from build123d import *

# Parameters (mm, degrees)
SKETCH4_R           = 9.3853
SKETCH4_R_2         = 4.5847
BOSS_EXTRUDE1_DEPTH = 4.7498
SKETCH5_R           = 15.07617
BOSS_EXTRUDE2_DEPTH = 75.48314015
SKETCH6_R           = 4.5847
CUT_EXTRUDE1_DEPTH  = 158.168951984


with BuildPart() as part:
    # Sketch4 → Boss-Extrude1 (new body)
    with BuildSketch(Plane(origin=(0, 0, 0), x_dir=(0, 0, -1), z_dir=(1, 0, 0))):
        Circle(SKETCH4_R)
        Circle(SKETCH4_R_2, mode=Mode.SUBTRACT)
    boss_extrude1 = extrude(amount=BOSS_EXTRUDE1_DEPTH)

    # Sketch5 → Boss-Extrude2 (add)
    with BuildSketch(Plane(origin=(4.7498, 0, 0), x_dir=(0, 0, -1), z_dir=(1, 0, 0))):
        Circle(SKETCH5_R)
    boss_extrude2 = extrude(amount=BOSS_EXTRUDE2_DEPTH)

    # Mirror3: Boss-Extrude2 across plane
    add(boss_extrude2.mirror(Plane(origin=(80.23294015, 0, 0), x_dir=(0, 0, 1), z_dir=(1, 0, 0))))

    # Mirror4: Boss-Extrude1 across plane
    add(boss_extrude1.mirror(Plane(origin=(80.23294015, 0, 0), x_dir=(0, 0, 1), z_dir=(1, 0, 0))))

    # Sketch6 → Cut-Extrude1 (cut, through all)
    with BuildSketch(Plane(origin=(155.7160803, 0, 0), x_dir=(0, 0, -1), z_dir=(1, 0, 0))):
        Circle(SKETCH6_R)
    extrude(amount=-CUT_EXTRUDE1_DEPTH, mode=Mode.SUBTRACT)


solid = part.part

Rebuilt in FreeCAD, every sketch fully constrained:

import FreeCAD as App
import Part
import Sketcher

V = App.Vector
Q = App.Units.Quantity

doc = App.newDocument("Part")
body = doc.addObject("PartDesign::Body", "Body")

sketch1 = body.newObject("Sketcher::SketchObject", "Sketch")
sketch1.AttachmentSupport = (doc.getObject("YZ_Plane"), [""])
sketch1.MapMode = "FlatFace"
sketch1.addGeometry(Part.Circle(V(0, 0, 0), V(0, 0, 1), 9.3853), False)
sketch1.addGeometry(Part.Circle(V(0, 0, 0), V(0, 0, 1), 4.5847), False)
sketch1.addConstraint(Sketcher.Constraint("Coincident", 0, 3, -1, 1))
sketch1.addConstraint(Sketcher.Constraint("Coincident", 1, 3, -1, 1))
sketch1.addConstraint(Sketcher.Constraint("Diameter", 0, Q("0.739 in")))
sketch1.addConstraint(Sketcher.Constraint("Diameter", 1, Q("0.361 in")))
pad1 = body.newObject("PartDesign::Pad", "Pad")
pad1.Profile = sketch1
pad1.Length = Q("0.187 in")

sketch2 = body.newObject("Sketcher::SketchObject", "Sketch001")
sketch2.AttachmentSupport = (doc.getObject("YZ_Plane"), [""])
sketch2.MapMode = "FlatFace"
sketch2.AttachmentOffset = App.Placement(V(0, 0, 0.187 * 25.4), App.Rotation())
sketch2.addGeometry(Part.Circle(V(0, 0, 0), V(0, 0, 1), 15.07617), False)
sketch2.addConstraint(Sketcher.Constraint("Coincident", 0, 3, -1, 1))
sketch2.addConstraint(Sketcher.Constraint("Diameter", 0, Q("1.1871 in")))
pad2 = body.newObject("PartDesign::Pad", "Pad001")
pad2.Profile = sketch2
pad2.Length = 75.48314
doc.recompute()

datumplane = body.newObject("PartDesign::Plane", "DatumPlane")
datumplane.AttachmentSupport = (doc.getObject("YZ_Plane"), [""])
datumplane.MapMode = "FlatFace"
datumplane.AttachmentOffset = App.Placement(V(0, 0, 80.23294), App.Rotation())
mirrored = body.newObject("PartDesign::Mirrored", "Mirrored")
mirrored.Originals = [pad2]
mirrored.MirrorPlane = (datumplane, [""])
body.Tip = mirrored
doc.recompute()

datumplane2 = body.newObject("PartDesign::Plane", "DatumPlane001")
datumplane2.AttachmentSupport = (doc.getObject("YZ_Plane"), [""])
datumplane2.MapMode = "FlatFace"
datumplane2.AttachmentOffset = App.Placement(V(0, 0, 80.23294), App.Rotation())
mirrored2 = body.newObject("PartDesign::Mirrored", "Mirrored001")
mirrored2.Originals = [pad1]
mirrored2.MirrorPlane = (datumplane2, [""])
body.Tip = mirrored2

sketch3 = body.newObject("Sketcher::SketchObject", "Sketch002")
sketch3.AttachmentSupport = (doc.getObject("YZ_Plane"), [""])
sketch3.MapMode = "FlatFace"
sketch3.AttachmentOffset = App.Placement(V(0, 0, 155.71608), App.Rotation())
sketch3.addGeometry(Part.Circle(V(0, 0, 0), V(0, 0, 1), 4.5847), False)
sketch3.addConstraint(Sketcher.Constraint("Coincident", 0, 3, -1, 1))
sketch3.addConstraint(Sketcher.Constraint("Diameter", 0, Q("0.361 in")))
pocket1 = body.newObject("PartDesign::Pocket", "Pocket")
pocket1.Profile = sketch3
pocket1.Type = "ThroughAll"

doc.recompute()
